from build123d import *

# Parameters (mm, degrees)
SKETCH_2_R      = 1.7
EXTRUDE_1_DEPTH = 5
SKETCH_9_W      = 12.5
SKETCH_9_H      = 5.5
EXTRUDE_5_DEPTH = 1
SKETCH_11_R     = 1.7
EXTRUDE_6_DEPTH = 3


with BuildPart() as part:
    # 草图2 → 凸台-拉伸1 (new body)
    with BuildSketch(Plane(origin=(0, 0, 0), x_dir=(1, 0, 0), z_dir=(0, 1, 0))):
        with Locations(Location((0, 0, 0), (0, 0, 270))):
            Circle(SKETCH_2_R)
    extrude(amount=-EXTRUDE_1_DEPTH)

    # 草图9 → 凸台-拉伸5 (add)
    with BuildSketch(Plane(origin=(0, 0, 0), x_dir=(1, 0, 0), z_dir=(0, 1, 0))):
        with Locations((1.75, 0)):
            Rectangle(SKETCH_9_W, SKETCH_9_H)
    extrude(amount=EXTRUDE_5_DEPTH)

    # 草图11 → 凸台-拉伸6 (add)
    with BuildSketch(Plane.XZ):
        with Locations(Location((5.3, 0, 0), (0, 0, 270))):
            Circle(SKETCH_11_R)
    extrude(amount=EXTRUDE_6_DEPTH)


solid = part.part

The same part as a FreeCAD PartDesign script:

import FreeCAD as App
import Part
import Sketcher
from FreeCAD import Vector
Q = App.Units.Quantity


def add_polygon(sketch, points):
    """Adds a closed chain of lines whose ends are joined by coincident constraints."""
    first, n = sketch.GeometryCount, len(points)
    for a, b in zip(points, points[1:] + points[:1]):
        sketch.addGeometry(Part.LineSegment(App.Vector(*a, 0), App.Vector(*b, 0)), False)
    for i in range(n):
        sketch.addConstraint(Sketcher.Constraint("Coincident", first + i, 2, first + (i + 1) % n, 1))

doc = App.newDocument("Part")
body = doc.addObject("PartDesign::Body", "Body")

# Sketch on XZ plane
sketch1 = doc.addObject("Sketcher::SketchObject", "Sketch")
body.addObject(sketch1)
sketch1.AttachmentSupport = (doc.XZ_Plane, [""])
sketch1.MapMode = "FlatFace"
sketch1.addGeometry(Part.Circle(Vector(0, 0, 0), Vector(0, 0, 1), 1.7), False)
sketch1.addConstraint([
    Sketcher.Constraint("Coincident", 0, 3, -1, 1),
    Sketcher.Constraint("Diameter", 0, Q("3.4 mm")),
])
pad1 = doc.addObject("PartDesign::Pad", "Pad")
body.addObject(pad1)
pad1.Profile = sketch1
pad1.Length = 5

# Sketch on XZ plane
sketch2 = doc.addObject("Sketcher::SketchObject", "Sketch001")
body.addObject(sketch2)
sketch2.AttachmentSupport = (doc.XZ_Plane, [""])
sketch2.MapMode = "FlatFace"
add_polygon(sketch2, [(-4, -3), (-4, 3), (8, 3), (8, -3)])  # lines 0-3
sketch2.addConstraint([
    Sketcher.Constraint("Vertical", 0),
    Sketcher.Constraint("Horizontal", 1),
    Sketcher.Constraint("Vertical", 2),
    Sketcher.Constraint("Horizontal", 3),
    Sketcher.Constraint("DistanceX", 1, 1, 1, 2, Q("12.5 mm")),
    Sketcher.Constraint("DistanceY", 0, 1, 0, 2, Q("5.5 mm")),
    Sketcher.Constraint("DistanceX", -1, 1, 1, 2, Q("8 mm")),
    Sketcher.Constraint("DistanceY", -1, 1, 0, 2, Q("2.75 mm")),
])
pad2 = doc.addObject("PartDesign::Pad", "Pad001")
body.addObject(pad2)
pad2.Profile = sketch2
pad2.Length = 1
pad2.Reversed = True

# Sketch on XZ plane
sketch3 = doc.addObject("Sketcher::SketchObject", "Sketch002")
body.addObject(sketch3)
sketch3.AttachmentSupport = (doc.XZ_Plane, [""])
sketch3.MapMode = "FlatFace"
sketch3.addGeometry(Part.Circle(Vector(5.3, 0, 0), Vector(0, 0, 1), 1.7), False)
sketch3.addConstraint([
    Sketcher.Constraint("PointOnObject", 0, 3, -1),
    Sketcher.Constraint("Diameter", 0, Q("3.4 mm")),
    Sketcher.Constraint("DistanceX", -1, 1, 0, 3, Q("5.3 mm")),
])
pad3 = doc.addObject("PartDesign::Pad", "Pad002")
body.addObject(pad3)
pad3.Profile = sketch3
pad3.Length = 3

doc.recompute()
